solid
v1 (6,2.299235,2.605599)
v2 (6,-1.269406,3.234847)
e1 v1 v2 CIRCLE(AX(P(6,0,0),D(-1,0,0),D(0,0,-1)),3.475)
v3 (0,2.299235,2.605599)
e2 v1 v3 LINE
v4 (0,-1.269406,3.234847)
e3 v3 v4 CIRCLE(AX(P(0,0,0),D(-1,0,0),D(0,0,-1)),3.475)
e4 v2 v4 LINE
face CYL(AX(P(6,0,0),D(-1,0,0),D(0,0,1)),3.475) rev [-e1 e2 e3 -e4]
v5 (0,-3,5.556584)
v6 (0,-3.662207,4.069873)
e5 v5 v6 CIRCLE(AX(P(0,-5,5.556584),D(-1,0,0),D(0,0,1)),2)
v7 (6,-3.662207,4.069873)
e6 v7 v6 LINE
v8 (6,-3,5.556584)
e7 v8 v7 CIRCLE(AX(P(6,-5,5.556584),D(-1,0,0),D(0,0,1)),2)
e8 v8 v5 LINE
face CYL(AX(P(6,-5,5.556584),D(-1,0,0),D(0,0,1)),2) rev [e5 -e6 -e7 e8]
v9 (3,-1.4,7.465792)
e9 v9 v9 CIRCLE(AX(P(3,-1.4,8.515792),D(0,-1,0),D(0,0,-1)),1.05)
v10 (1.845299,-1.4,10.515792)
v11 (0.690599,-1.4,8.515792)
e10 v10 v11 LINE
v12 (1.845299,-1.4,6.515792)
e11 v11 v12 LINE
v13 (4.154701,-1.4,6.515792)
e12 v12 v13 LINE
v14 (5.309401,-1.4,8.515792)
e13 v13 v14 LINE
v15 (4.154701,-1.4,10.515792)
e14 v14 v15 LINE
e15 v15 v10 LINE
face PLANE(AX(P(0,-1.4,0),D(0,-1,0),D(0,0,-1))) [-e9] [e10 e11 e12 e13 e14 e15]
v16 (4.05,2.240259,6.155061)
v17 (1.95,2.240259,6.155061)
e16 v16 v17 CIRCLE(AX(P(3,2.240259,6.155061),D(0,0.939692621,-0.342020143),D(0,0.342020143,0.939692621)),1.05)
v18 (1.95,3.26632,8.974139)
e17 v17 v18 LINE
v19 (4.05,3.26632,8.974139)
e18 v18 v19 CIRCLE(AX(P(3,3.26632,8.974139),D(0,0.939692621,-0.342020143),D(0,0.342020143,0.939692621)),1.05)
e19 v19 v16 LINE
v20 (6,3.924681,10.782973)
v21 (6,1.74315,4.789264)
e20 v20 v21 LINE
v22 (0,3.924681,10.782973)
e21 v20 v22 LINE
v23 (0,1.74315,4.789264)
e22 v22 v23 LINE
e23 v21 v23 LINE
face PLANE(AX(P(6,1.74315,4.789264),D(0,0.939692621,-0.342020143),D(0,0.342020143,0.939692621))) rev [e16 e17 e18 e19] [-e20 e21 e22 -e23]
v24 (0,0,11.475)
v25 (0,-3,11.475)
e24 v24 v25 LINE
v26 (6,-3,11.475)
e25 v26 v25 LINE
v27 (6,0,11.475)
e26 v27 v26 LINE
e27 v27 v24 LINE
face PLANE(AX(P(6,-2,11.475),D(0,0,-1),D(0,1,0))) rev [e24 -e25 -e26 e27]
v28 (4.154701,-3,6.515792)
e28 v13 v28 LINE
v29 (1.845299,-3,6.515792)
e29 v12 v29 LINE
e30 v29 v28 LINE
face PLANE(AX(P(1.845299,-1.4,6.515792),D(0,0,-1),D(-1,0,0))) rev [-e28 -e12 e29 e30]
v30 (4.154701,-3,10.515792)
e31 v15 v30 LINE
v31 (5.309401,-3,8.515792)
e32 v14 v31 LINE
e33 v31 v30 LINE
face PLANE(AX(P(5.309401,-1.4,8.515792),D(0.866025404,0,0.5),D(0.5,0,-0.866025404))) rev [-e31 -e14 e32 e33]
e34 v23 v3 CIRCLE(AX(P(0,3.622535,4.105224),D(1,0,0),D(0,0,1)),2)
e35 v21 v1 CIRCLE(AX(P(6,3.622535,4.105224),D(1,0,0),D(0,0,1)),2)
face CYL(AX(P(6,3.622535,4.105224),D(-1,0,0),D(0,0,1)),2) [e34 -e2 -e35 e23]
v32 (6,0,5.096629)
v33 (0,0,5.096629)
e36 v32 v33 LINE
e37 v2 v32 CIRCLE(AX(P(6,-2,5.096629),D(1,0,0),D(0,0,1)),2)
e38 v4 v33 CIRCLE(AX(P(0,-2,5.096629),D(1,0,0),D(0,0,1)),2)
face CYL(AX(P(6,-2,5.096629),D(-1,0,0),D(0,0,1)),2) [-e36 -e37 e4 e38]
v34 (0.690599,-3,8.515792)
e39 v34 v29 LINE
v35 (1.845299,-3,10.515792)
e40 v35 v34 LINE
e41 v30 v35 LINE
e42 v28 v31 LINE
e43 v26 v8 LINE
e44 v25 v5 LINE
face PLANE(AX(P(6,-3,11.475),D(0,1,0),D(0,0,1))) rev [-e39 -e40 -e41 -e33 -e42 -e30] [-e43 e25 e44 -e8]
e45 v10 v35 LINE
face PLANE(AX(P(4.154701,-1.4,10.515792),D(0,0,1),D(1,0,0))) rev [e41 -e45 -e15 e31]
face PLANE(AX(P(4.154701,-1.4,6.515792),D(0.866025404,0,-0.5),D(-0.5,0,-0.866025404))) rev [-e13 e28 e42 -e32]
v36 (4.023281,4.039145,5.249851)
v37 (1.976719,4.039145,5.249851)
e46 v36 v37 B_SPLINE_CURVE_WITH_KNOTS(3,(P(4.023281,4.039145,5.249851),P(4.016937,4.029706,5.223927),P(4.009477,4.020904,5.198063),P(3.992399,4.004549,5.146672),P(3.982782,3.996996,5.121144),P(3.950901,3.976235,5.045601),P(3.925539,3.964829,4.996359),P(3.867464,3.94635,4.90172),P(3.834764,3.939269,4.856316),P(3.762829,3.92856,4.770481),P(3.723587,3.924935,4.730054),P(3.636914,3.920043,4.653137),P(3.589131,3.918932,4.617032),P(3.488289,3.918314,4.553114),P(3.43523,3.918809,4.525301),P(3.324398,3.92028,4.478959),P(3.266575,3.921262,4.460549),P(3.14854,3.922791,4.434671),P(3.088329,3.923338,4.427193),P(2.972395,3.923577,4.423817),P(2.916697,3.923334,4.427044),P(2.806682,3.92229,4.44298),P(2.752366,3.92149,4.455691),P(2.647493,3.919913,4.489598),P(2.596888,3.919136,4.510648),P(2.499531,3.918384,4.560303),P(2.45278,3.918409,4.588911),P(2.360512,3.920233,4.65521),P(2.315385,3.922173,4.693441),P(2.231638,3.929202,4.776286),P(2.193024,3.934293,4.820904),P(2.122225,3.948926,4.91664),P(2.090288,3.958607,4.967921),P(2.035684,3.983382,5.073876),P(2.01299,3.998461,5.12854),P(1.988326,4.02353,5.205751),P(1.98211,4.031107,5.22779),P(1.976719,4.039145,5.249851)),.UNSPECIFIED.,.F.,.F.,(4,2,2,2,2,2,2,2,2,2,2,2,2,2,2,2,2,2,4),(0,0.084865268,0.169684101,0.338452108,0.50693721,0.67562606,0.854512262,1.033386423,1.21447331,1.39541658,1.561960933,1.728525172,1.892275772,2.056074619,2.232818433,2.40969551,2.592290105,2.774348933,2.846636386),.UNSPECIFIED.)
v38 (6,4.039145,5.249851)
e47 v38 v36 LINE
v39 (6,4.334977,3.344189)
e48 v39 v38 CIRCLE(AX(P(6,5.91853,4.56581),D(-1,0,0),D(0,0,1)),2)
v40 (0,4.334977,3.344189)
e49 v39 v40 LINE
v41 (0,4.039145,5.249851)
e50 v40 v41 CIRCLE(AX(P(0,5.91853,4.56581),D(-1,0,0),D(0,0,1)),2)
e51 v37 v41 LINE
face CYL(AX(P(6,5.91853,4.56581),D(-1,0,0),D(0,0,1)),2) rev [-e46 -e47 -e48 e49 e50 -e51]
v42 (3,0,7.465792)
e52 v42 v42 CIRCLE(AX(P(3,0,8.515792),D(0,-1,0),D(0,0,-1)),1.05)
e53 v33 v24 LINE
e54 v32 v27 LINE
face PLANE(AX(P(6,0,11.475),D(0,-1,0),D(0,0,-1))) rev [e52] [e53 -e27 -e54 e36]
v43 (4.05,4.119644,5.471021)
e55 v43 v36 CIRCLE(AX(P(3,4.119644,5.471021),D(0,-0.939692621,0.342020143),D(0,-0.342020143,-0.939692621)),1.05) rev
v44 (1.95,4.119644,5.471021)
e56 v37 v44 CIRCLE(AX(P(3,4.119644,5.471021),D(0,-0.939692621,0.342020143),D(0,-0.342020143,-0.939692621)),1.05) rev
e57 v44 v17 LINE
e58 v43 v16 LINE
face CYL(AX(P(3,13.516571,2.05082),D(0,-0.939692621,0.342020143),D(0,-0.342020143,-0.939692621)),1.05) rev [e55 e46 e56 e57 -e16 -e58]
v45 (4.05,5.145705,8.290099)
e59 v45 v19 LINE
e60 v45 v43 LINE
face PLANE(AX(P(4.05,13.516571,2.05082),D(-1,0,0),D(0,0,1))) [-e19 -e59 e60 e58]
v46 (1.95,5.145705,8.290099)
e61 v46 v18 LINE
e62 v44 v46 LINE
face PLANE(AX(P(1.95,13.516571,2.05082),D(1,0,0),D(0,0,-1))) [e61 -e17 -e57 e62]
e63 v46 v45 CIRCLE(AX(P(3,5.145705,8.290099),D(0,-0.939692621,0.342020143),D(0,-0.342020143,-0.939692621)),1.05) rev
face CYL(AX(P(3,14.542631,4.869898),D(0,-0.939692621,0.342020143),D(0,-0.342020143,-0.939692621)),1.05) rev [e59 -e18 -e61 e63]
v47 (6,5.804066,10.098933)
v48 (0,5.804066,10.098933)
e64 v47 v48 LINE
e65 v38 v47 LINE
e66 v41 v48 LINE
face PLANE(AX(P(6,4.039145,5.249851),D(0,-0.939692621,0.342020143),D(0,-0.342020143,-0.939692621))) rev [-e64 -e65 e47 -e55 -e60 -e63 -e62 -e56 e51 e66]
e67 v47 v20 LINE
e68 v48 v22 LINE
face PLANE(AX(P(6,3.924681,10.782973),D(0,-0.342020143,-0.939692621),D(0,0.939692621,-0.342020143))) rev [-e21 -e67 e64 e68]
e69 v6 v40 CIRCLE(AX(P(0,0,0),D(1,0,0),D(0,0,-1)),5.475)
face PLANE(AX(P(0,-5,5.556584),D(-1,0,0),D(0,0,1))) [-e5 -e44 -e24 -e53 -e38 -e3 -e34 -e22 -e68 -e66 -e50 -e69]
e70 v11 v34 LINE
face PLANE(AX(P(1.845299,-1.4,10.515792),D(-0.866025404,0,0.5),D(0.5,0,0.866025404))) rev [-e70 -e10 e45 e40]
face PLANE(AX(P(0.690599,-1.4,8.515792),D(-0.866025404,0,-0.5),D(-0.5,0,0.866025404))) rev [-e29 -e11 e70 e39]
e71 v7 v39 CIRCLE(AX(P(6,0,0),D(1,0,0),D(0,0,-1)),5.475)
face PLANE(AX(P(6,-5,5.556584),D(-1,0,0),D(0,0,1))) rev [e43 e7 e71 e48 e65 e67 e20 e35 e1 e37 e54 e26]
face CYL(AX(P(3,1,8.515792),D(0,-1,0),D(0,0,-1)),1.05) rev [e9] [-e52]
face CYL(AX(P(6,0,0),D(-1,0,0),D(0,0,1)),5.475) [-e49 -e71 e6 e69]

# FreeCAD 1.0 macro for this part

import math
import FreeCAD as App
import Part
import Sketcher

V = App.Vector
Q = App.Units.Quantity

doc = App.newDocument("Part")
body = doc.addObject("PartDesign::Body", "Body")

sketch1 = body.newObject("Sketcher::SketchObject", "Sketch")
sketch1.AttachmentSupport = (doc.getObject("YZ_Plane"), [""])
sketch1.MapMode = "FlatFace"
sketch1.addGeometry([
    Part.LineSegment(V(0, 5.1, 0), V(0, 11.5, 0)),
    Part.LineSegment(V(0, 11.5, 0), V(-3, 11.5, 0)),
    Part.LineSegment(V(-3, 11.5, 0), V(-3, 5.6, 0)),
    Part.ArcOfCircle(Part.Circle(V(-5, 5.6, 0), V(0, 0, 1), 2), math.radians(-48), math.radians(0)),
    Part.ArcOfCircle(Part.Circle(V(0, 0, 0), V(0, 0, 1), 5.5), math.radians(132), math.radians(398)),
    Part.ArcOfCircle(Part.Circle(V(5.9, 4.6, 0), V(0, 0, 1), 2), math.radians(160), math.radians(218)),
    Part.LineSegment(V(4, 5.2, 0), V(5.8, 10.1, 0)),
    Part.LineSegment(V(5.8, 10.1, 0), V(3.9, 10.8, 0)),
    Part.LineSegment(V(3.9, 10.8, 0), V(1.7, 4.8, 0)),
    Part.ArcOfCircle(Part.Circle(V(3.6, 4.1, 0), V(0, 0, 1), 2), math.radians(160), math.radians(229)),
    Part.ArcOfCircle(Part.Circle(V(0, 0, 0), V(0, 0, 1), 3.5), math.radians(111), math.radians(409)),
    Part.ArcOfCircle(Part.Circle(V(-2, 5.1, 0), V(0, 0, 1), 2), math.radians(-69), math.radians(0)),
], False)
sketch1.addConstraint([
    Sketcher.Constraint("Coincident", 0, 2, 1, 1),
    Sketcher.Constraint("Coincident", 1, 2, 2, 1),
    Sketcher.Constraint("Tangent", 2, 2, 3, 2),
    Sketcher.Constraint("Tangent", 3, 1, 4, 1),
    Sketcher.Constraint("Tangent", 4, 2, 5, 2),
    Sketcher.Constraint("Tangent", 5, 1, 6, 1),
    Sketcher.Constraint("Coincident", 6, 2, 7, 1),
    Sketcher.Constraint("Coincident", 7, 2, 8, 1),
    Sketcher.Constraint("Tangent", 8, 2, 9, 1),
    Sketcher.Constraint("Tangent", 9, 2, 10, 2),
    Sketcher.Constraint("Tangent", 10, 1, 11, 1),
    Sketcher.Constraint("Tangent", 11, 2, 0, 1),
    Sketcher.Constraint("Vertical", 0),
    Sketcher.Constraint("Horizontal", 1),
    Sketcher.Constraint("Vertical", 2),
    Sketcher.Constraint("Coincident", 4, 3, -1, 1),
    Sketcher.Constraint("Coincident", 10, 3, -1, 1),
    Sketcher.Constraint("Equal", 3, 5),
    Sketcher.Constraint("Equal", 5, 9),
    Sketcher.Constraint("Equal", 9, 11),
    Sketcher.Constraint("PointOnObject", 0, 2, -2),
    Sketcher.Constraint("Perpendicular", 6, 7),
    Sketcher.Constraint("Perpendicular", 7, 8),
    Sketcher.Constraint("Radius", 3, 2.0),
    Sketcher.Constraint("DistanceX", 1, 2, 1, 1, 3.0),
    Sketcher.Constraint("Angle", 6, Q("70 deg")),
    Sketcher.Constraint("Distance", 7, 2.0),
    Sketcher.Constraint("Radius", 4, 5.475),
    Sketcher.Constraint("Radius", 10, 3.475),
    Sketcher.Constraint("DistanceY", -1, 1, 0, 2, 11.475),
    Sketcher.Constraint("DistanceY", -1, 1, 9, 2, 2.605599),
    Sketcher.Constraint("Distance", 8, 6.378371),
])
pad1 = body.newObject("PartDesign::Pad", "Pad")
pad1.Profile = sketch1
pad1.Length = 6

sketch2 = body.newObject("Sketcher::SketchObject", "Sketch001")
sketch2.Placement = App.Placement(V(0, 1.879385, -0.68404), App.Rotation(V(1, 0, 0), V(0, -0.342020143, -0.939692621), V(0, 0.939692621, -0.342020143), "ZXY"))
sketch2.addGeometry([
    Part.LineSegment(V(4, -9.6, 0), V(4, -6.6, 0)),
    Part.ArcOfCircle(Part.Circle(V(3, -6.6, 0), V(0, 0, 1), 1.1), math.radians(0), math.radians(180)),
    Part.LineSegment(V(1.9, -6.6, 0), V(1.9, -9.6, 0)),
    Part.ArcOfCircle(Part.Circle(V(3, -9.6, 0), V(0, 0, 1), 1.1), math.radians(180), math.radians(360)),
], False)
sketch2.addConstraint([
    Sketcher.Constraint("Tangent", 0, 2, 1, 1),
    Sketcher.Constraint("Tangent", 1, 2, 2, 1),
    Sketcher.Constraint("Tangent", 2, 2, 3, 1),
    Sketcher.Constraint("Tangent", 3, 2, 0, 1),
    Sketcher.Constraint("Vertical", 0),
    Sketcher.Constraint("Vertical", 2),
    Sketcher.Constraint("DistanceY", 0, 1, 0, 2, 3.0),
    Sketcher.Constraint("Radius", 1, 1.05),
    Sketcher.Constraint("DistanceX", -1, 1, 1, 3, 3.0),
    Sketcher.Constraint("DistanceY", 1, 3, -1, 1, 6.55008),
])
pocket1 = body.newObject("PartDesign::Pocket", "Pocket")
pocket1.Profile = sketch2
pocket1.Type = "TwoLengths"
pocket1.Length = 10
pocket1.Length2 = 2
pocket1.Reversed = True

sketch3 = body.newObject("Sketcher::SketchObject", "Sketch002")
sketch3.AttachmentSupport = (doc.getObject("XZ_Plane"), [""])
sketch3.MapMode = "FlatFace"
sketch3.AttachmentOffset = App.Placement(V(0, 0, 3), App.Rotation())
sketch3.addGeometry([
    Part.LineSegment(V(4.2, 10.5, 0), V(1.8, 10.5, 0)),
    Part.LineSegment(V(1.8, 10.5, 0), V(0.7, 8.5, 0)),
    Part.LineSegment(V(0.7, 8.5, 0), V(1.8, 6.5, 0)),
    Part.LineSegment(V(1.8, 6.5, 0), V(4.2, 6.5, 0)),
    Part.LineSegment(V(4.2, 6.5, 0), V(5.3, 8.5, 0)),
    Part.LineSegment(V(5.3, 8.5, 0), V(4.2, 10.5, 0)),
    Part.Circle(V(3, 8.5, 0), V(0, 0, 1), 1.1),
], False)
sketch3.addConstraint([
    Sketcher.Constraint("Coincident", 0, 2, 1, 1),
    Sketcher.Constraint("Coincident", 1, 2, 2, 1),
    Sketcher.Constraint("Coincident", 2, 2, 3, 1),
    Sketcher.Constraint("Coincident", 3, 2, 4, 1),
    Sketcher.Constraint("Coincident", 4, 2, 5, 1),
    Sketcher.Constraint("Coincident", 5, 2, 0, 1),
    Sketcher.Constraint("Horizontal", 0),
    Sketcher.Constraint("Horizontal", 3),
    Sketcher.Constraint("Parallel", 1, 4),
    Sketcher.Constraint("Parallel", 2, 5),
    Sketcher.Constraint("Horizontal", 6, 3, 1, 2),
    Sketcher.Constraint("Horizontal", 1, 2, 4, 2),
    Sketcher.Constraint("Vertical", 0, 2, 2, 2),
    Sketcher.Constraint("Vertical", 3, 2, 5, 2),
    Sketcher.Constraint("Diameter", 6, 2.1),
    Sketcher.Constraint("Angle", 1, Q("-120 deg")),
    Sketcher.Constraint("DistanceX", -1, 1, 6, 3, 3.0),
    Sketcher.Constraint("DistanceY", 6, 3, 0, 2, 2.0),
    Sketcher.Constraint("DistanceX", 0, 2, 0, 1, 2.309401),
    Sketcher.Constraint("DistanceX", -1, 1, 0, 2, 1.845299),
    Sketcher.Constraint("DistanceY", -1, 1, 6, 3, 8.515792),
])
pocket2 = body.newObject("PartDesign::Pocket", "Pocket001")
pocket2.Profile = sketch3
pocket2.Length = 1.6

sketch4 = body.newObject("Sketcher::SketchObject", "Sketch003")
sketch4.AttachmentSupport = (doc.getObject("XZ_Plane"), [""])
sketch4.MapMode = "FlatFace"
sketch4.AttachmentOffset = App.Placement(V(0, 0, 3), App.Rotation())
sketch4.addGeometry(Part.Circle(V(3, 8.5, 0), V(0, 0, 1), 1.1), False)
sketch4.addConstraint([
    Sketcher.Constraint("Diameter", 0, 2.1),
    Sketcher.Constraint("DistanceX", -1, 1, 0, 3, 3.0),
    Sketcher.Constraint("DistanceY", -1, 1, 0, 3, 8.515792),
])
pocket3 = body.newObject("PartDesign::Pocket", "Pocket002")
pocket3.Profile = sketch4
pocket3.Length = 4

doc.recompute()
